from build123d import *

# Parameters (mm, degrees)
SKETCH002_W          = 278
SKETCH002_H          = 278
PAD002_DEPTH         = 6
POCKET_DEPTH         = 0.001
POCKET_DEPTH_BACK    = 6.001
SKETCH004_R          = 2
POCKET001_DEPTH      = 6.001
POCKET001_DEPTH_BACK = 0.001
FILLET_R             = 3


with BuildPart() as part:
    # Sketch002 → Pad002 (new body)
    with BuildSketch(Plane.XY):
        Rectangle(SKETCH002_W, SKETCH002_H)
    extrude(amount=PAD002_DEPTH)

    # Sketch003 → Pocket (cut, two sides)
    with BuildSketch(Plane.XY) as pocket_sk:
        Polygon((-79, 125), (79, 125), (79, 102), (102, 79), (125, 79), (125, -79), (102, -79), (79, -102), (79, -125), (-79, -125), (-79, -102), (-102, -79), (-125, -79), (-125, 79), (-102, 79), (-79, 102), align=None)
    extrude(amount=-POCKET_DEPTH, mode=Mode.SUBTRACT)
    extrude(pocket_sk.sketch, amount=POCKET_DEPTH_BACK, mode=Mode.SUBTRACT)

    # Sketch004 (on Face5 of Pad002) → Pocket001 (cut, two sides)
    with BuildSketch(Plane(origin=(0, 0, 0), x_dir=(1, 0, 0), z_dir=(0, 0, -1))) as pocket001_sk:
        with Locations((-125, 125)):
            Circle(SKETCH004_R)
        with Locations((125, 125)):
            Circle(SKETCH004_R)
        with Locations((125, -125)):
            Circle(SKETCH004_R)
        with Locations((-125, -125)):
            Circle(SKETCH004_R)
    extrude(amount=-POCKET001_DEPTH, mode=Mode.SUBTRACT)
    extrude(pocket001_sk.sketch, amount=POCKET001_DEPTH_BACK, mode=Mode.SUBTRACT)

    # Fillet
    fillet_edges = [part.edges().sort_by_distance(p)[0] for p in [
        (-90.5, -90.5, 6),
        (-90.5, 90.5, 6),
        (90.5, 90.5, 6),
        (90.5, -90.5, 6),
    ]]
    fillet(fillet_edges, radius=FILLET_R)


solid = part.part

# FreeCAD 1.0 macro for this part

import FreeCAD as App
import Part
import Sketcher

V = App.Vector


def edges_at(feature, points):
    """Names of the edges that pass closest to the given points."""
    edges = feature.Shape.Edges
    near = lambda p: min(range(len(edges)), key=lambda i: edges[i].distToShape(Part.Vertex(*p))[0])
    return sorted({f"Edge{near(p) + 1}" for p in points})


def add_polygon(sketch, points):
    """Adds a closed chain of lines whose ends are joined by coincident constraints."""
    first, n = sketch.GeometryCount, len(points)
    for a, b in zip(points, points[1:] + points[:1]):
        sketch.addGeometry(Part.LineSegment(App.Vector(*a, 0), App.Vector(*b, 0)), False)
    for i in range(n):
        sketch.addConstraint(Sketcher.Constraint("Coincident", first + i, 2, first + (i + 1) % n, 1))

doc = App.newDocument("Part")
body = doc.addObject("PartDesign::Body", "Body")

# Sketch on XY plane
sketch1 = body.newObject("Sketcher::SketchObject", "Sketch")
sketch1.AttachmentSupport = (doc.getObject("XY_Plane"), [""])
sketch1.MapMode = "FlatFace"
add_polygon(sketch1, [(-139, 139), (-139, -139), (139, -139), (139, 139)])  # lines 0-3
sketch1.addConstraint([
    Sketcher.Constraint("Vertical", 0),
    Sketcher.Constraint("Horizontal", 1),
    Sketcher.Constraint("Vertical", 2),
    Sketcher.Constraint("Horizontal", 3),
    Sketcher.Constraint("Symmetric", 0, 2, 2, 2, -1, 1),
    Sketcher.Constraint("Equal", 3, 0),
    Sketcher.Constraint("DistanceX", 1, 1, 1, 2, 278.0),
])
pad1 = body.newObject("PartDesign::Pad", "Pad")
pad1.Profile = sketch1
pad1.Length = 6

# Sketch on XY plane
sketch2 = body.newObject("Sketcher::SketchObject", "Sketch001")
sketch2.AttachmentSupport = (doc.getObject("XY_Plane"), [""])
sketch2.MapMode = "FlatFace"
add_polygon(sketch2, [(79, 125), (-79, 125), (-79, 102), (-102, 79), (-125, 79), (-125, -79), (-102, -79), (-79, -102), (-79, -125), (79, -125), (79, -102), (102, -79), (125, -79), (125, 79), (102, 79), (79, 102)])  # lines 0-15
sketch2.addConstraint([
    Sketcher.Constraint("Horizontal", 0),
    Sketcher.Constraint("Vertical", 1),
    Sketcher.Constraint("Horizontal", 3),
    Sketcher.Constraint("Vertical", 4),
    Sketcher.Constraint("Horizontal", 5),
    Sketcher.Constraint("Vertical", 7),
    Sketcher.Constraint("Horizontal", 8),
    Sketcher.Constraint("Vertical", 9),
    Sketcher.Constraint("Horizontal", 11),
    Sketcher.Constraint("Vertical", 12),
    Sketcher.Constraint("Horizontal", 13),
    Sketcher.Constraint("Vertical", 15),
    Sketcher.Constraint("Symmetric", 0, 2, 8, 2, -1, 1),
    Sketcher.Constraint("Symmetric", 2, 2, 10, 2, -1, 1),
    Sketcher.Constraint("Symmetric", 4, 2, 12, 2, -1, 1),
    Sketcher.Constraint("Symmetric", 6, 2, 14, 2, -1, 1),
    Sketcher.Constraint("Symmetric", 6, 2, 9, 2, -2),
    Sketcher.Constraint("Symmetric", 5, 2, 10, 2, -2),
    Sketcher.Constraint("Perpendicular", 2, 6),
    Sketcher.Constraint("Perpendicular", 6, 10),
    Sketcher.Constraint("Perpendicular", 10, 14),
    Sketcher.Constraint("Equal", 13, 1),
    Sketcher.Constraint("Equal", 8, 4),
    Sketcher.Constraint("DistanceX", 0, 2, 0, 1, 158.0),
    Sketcher.Constraint("DistanceX", 3, 2, 3, 1, 23.0),
    Sketcher.Constraint("DistanceY", -1, 1, 0, 2, 125.0),
])
pocket1 = body.newObject("PartDesign::Pocket", "Pocket")
pocket1.Profile = sketch2
pocket1.Type = "ThroughAll"
pocket1.Midplane = True

# Sketch on XY plane
sketch3 = body.newObject("Sketcher::SketchObject", "Sketch002")
sketch3.AttachmentSupport = (doc.getObject("XY_Plane"), [""])
sketch3.MapMode = "FlatFace"
sketch3.addGeometry([
    Part.Circle(V(-125, -125, 0), V(0, 0, 1), 2),
    Part.Circle(V(125, -125, 0), V(0, 0, 1), 2),
    Part.Circle(V(125, 125, 0), V(0, 0, 1), 2),
    Part.Circle(V(-125, 125, 0), V(0, 0, 1), 2),
], False)
sketch3.addConstraint([
    Sketcher.Constraint("Equal", 0, 1),
    Sketcher.Constraint("Equal", 1, 2),
    Sketcher.Constraint("Equal", 2, 3),
    Sketcher.Constraint("Symmetric", 0, 3, 2, 3, -1, 1),
    Sketcher.Constraint("Symmetric", 1, 3, 3, 3, -1, 1),
    Sketcher.Constraint("Symmetric", 0, 3, 1, 3, -2),
    Sketcher.Constraint("Diameter", 0, 4.0),
    Sketcher.Constraint("DistanceX", 0, 3, -1, 1, 125.0),
    Sketcher.Constraint("DistanceY", 0, 3, -1, 1, 125.0),
])
pocket2 = body.newObject("PartDesign::Pocket", "Pocket001")
pocket2.Profile = sketch3
pocket2.Type = "ThroughAll"
pocket2.Midplane = True
doc.recompute()

fillet = body.newObject("PartDesign::Fillet", "Fillet")
fillet.Base = (pocket2, edges_at(pocket2, [
    (-90.5, -90.5, 6),
    (-90.5, 90.5, 6),
    (90.5, 90.5, 6),
    (90.5, -90.5, 6),
]))
fillet.Radius = 3

doc.recompute()
